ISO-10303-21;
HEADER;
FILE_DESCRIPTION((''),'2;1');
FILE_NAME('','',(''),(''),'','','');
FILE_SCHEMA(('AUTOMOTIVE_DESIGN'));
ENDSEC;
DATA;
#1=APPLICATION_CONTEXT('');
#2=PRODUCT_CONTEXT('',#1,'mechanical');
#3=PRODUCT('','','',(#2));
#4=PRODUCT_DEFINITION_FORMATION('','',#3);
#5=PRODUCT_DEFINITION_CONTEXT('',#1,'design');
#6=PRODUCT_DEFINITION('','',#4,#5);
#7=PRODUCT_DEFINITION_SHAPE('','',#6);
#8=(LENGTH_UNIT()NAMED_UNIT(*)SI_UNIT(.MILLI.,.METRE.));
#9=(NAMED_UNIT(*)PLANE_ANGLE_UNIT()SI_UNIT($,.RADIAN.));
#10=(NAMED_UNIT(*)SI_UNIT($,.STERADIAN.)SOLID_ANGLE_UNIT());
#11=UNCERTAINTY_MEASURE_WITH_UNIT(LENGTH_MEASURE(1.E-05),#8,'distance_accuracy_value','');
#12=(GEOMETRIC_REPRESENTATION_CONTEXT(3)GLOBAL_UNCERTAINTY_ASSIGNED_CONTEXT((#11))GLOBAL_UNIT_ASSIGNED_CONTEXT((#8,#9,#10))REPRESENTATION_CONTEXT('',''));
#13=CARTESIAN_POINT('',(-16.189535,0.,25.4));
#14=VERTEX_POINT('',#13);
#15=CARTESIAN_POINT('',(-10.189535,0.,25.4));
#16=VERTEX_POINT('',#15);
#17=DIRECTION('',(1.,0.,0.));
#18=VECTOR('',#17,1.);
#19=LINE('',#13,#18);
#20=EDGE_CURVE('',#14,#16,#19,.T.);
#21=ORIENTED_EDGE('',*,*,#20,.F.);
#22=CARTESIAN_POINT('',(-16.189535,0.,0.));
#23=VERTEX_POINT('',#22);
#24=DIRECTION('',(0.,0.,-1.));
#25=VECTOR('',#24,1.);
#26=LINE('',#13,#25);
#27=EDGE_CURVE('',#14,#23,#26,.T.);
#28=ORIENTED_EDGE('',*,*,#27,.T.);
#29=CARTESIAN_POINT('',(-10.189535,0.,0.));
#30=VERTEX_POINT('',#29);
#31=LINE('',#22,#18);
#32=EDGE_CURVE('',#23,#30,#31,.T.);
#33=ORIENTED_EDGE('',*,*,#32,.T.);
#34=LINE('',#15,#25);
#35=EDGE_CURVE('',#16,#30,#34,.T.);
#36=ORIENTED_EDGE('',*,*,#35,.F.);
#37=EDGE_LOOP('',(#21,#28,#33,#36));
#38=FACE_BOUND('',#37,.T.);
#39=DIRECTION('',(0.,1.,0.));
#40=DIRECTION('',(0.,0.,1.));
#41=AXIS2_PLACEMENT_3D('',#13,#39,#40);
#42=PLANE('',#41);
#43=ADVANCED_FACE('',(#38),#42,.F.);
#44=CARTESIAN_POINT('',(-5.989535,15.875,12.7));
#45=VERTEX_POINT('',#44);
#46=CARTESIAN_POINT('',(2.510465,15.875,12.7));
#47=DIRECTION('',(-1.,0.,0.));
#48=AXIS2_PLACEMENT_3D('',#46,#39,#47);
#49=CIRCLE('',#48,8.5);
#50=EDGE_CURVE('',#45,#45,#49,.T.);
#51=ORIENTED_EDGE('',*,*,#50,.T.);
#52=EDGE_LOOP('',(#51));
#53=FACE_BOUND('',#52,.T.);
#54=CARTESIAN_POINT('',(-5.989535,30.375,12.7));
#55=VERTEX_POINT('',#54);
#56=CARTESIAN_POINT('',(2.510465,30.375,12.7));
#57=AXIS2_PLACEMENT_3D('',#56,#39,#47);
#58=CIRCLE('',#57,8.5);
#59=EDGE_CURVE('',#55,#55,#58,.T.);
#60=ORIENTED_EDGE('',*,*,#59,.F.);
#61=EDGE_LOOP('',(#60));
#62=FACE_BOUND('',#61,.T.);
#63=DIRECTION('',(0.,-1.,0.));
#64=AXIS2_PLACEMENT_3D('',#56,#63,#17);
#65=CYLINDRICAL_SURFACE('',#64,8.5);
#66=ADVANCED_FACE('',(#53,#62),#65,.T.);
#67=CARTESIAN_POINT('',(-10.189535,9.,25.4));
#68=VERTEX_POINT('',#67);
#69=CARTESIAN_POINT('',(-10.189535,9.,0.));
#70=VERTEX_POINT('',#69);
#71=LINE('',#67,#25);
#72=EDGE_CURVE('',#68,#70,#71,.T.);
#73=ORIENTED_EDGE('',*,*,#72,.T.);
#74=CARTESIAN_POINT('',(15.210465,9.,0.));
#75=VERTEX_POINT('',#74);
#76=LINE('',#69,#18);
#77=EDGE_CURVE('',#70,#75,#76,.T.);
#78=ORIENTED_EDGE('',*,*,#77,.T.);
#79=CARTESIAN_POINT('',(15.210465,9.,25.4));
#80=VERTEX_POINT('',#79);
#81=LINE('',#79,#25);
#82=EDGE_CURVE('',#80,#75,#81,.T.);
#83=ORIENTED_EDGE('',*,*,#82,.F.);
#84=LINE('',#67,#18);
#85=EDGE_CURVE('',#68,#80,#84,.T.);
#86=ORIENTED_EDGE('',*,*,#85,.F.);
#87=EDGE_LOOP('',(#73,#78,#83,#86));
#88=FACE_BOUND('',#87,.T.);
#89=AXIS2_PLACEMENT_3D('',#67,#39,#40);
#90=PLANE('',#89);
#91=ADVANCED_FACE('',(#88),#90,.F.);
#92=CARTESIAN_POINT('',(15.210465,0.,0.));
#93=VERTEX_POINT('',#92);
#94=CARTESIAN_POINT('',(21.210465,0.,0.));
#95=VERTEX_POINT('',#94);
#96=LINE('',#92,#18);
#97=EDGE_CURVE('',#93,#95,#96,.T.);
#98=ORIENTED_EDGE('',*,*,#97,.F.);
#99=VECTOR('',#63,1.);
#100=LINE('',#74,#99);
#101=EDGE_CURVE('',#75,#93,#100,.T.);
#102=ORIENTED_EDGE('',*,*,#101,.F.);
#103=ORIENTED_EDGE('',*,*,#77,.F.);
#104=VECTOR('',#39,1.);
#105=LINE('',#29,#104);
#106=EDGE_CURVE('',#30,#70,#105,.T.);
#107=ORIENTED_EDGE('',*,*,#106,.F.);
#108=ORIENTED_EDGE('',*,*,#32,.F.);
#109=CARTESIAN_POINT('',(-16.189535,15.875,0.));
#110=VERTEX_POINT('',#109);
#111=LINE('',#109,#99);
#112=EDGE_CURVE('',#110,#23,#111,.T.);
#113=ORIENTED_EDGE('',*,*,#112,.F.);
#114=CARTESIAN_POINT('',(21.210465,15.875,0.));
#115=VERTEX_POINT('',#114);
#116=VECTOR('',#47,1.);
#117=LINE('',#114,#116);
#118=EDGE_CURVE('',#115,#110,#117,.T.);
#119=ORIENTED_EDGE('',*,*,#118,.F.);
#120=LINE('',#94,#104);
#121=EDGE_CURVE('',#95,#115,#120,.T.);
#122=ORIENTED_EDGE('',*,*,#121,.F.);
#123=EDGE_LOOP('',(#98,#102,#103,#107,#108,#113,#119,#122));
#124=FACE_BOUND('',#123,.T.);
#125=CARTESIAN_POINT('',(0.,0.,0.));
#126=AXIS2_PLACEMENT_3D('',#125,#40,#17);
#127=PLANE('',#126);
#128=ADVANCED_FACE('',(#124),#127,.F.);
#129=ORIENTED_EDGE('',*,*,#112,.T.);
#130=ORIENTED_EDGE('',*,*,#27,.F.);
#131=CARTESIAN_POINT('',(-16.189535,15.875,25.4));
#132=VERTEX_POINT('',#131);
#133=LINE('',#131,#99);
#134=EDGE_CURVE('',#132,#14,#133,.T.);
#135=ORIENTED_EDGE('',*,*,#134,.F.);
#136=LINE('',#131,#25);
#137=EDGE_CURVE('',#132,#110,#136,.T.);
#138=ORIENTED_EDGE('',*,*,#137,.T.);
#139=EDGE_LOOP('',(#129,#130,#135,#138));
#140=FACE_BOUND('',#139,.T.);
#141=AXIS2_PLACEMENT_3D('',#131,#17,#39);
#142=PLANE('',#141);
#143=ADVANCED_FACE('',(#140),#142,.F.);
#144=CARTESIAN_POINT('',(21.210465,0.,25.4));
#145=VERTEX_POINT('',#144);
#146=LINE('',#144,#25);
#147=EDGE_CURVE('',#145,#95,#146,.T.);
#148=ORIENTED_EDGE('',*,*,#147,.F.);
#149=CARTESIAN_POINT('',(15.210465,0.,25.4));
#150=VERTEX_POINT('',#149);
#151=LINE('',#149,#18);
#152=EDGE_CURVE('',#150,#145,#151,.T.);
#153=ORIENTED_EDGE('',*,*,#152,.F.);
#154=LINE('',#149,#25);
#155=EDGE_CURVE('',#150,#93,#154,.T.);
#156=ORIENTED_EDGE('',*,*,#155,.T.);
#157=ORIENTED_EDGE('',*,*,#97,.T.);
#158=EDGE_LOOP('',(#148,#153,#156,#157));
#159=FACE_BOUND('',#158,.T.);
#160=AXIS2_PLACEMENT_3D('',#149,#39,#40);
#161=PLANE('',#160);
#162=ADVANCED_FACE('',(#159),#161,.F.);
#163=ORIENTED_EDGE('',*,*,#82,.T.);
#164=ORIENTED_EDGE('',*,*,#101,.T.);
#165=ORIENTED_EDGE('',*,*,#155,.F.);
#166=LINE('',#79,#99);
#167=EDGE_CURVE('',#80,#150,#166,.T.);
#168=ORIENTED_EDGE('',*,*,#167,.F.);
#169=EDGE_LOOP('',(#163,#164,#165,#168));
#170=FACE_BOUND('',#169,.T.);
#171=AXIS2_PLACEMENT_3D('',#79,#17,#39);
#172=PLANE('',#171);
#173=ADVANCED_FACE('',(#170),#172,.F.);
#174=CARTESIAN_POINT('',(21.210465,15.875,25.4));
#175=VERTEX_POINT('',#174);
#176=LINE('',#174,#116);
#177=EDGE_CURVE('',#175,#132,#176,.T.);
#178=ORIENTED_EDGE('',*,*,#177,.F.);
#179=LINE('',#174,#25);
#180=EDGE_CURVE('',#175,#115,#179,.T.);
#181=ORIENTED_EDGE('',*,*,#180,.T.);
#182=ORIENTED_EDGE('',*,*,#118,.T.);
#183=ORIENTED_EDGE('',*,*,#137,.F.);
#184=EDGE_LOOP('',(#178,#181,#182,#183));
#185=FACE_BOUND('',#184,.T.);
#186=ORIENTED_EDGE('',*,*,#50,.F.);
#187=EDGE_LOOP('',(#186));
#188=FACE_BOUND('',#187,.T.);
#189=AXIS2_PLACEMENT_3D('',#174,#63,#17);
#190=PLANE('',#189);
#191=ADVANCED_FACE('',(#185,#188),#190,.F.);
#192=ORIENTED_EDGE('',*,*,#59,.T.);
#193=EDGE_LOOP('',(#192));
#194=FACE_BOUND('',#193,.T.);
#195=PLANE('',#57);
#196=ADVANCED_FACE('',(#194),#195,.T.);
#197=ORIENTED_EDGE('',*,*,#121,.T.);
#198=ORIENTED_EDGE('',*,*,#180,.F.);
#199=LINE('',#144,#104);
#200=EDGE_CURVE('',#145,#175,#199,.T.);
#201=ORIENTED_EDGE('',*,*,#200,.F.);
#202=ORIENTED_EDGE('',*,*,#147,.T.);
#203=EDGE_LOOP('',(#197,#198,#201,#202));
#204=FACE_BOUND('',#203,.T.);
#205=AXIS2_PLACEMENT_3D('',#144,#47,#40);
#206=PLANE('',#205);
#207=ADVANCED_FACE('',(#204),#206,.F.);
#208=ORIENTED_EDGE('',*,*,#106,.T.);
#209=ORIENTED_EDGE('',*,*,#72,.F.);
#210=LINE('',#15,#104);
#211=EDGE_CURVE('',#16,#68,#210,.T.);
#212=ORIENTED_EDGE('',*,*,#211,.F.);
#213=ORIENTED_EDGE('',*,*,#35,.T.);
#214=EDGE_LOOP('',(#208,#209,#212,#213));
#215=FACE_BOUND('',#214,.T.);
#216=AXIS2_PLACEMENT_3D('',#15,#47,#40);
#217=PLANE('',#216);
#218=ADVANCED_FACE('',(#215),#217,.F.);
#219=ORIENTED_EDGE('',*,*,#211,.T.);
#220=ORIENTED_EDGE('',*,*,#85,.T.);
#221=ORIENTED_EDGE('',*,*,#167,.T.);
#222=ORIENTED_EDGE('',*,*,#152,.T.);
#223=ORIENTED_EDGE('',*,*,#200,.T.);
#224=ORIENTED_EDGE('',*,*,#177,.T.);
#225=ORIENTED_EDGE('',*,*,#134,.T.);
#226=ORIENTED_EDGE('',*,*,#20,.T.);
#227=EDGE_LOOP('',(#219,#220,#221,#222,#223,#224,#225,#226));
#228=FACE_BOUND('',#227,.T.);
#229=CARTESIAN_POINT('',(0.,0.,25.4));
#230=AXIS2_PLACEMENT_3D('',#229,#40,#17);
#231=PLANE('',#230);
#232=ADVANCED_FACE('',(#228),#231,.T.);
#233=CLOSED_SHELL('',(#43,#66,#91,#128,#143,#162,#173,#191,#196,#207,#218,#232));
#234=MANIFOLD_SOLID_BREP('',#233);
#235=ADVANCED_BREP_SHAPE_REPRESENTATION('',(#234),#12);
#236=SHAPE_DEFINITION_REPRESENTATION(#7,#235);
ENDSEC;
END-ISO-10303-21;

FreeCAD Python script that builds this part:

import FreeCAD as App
import Part
import Sketcher
from FreeCAD import Vector

doc = App.newDocument("Part")
body = doc.addObject("PartDesign::Body", "Body")

# Sketch on XY plane
sketch1 = body.newObject("Sketcher::SketchObject", "Sketch")
sketch1.AttachmentSupport = (doc.getObject("XY_Plane"), [""])
sketch1.MapMode = "FlatFace"
sketch1.addGeometry([
    Part.LineSegment(Vector(-10.189535, 0, 0), Vector(-10.189535, 9, 0)),  # 0
    Part.LineSegment(Vector(-10.189535, 9, 0), Vector(15.210465, 9, 0)),  # 1
    Part.LineSegment(Vector(15.210465, 9, 0), Vector(15.210465, 0, 0)),  # 2
    Part.LineSegment(Vector(15.210465, 0, 0), Vector(21.210465, 0, 0)),  # 3
    Part.LineSegment(Vector(21.210465, 0, 0), Vector(21.210465, 15.875, 0)),  # 4
    Part.LineSegment(Vector(21.210465, 15.875, 0), Vector(-16.189535, 15.875, 0)),  # 5
    Part.LineSegment(Vector(-16.189535, 15.875, 0), Vector(-16.189535, 0, 0)),  # 6
    Part.LineSegment(Vector(-16.189535, 0, 0), Vector(-10.189535, 0, 0)),  # 7
], False)
sketch1.addConstraint([
    Sketcher.Constraint("Coincident", 0, 2, 1, 1),
    Sketcher.Constraint("Coincident", 1, 2, 2, 1),
    Sketcher.Constraint("Coincident", 2, 2, 3, 1),
    Sketcher.Constraint("Coincident", 3, 2, 4, 1),
    Sketcher.Constraint("Coincident", 4, 2, 5, 1),
    Sketcher.Constraint("Coincident", 5, 2, 6, 1),
    Sketcher.Constraint("Coincident", 6, 2, 7, 1),
    Sketcher.Constraint("Coincident", 7, 2, 0, 1),
    Sketcher.Constraint("Vertical", 0),
    Sketcher.Constraint("Horizontal", 1),
    Sketcher.Constraint("Vertical", 2),
    Sketcher.Constraint("Horizontal", 3),
    Sketcher.Constraint("Vertical", 4),
    Sketcher.Constraint("Horizontal", 5),
    Sketcher.Constraint("Vertical", 6),
    Sketcher.Constraint("Horizontal", 7),
    Sketcher.Constraint("PointOnObject", 2, 2, -1),
    Sketcher.Constraint("PointOnObject", 6, 2, -1),
    Sketcher.Constraint("Equal", 3, 7),
    Sketcher.Constraint("DistanceX", 3, 1, 3, 2, 6.0),
    Sketcher.Constraint("DistanceY", 0, 1, 0, 2, 9.0),
    Sketcher.Constraint("DistanceX", 1, 1, 1, 2, 25.4),
    Sketcher.Constraint("DistanceY", 4, 1, 4, 2, 15.875),
    Sketcher.Constraint("DistanceX", 0, 2, -1, 1, 10.189535),
])
pad1 = body.newObject("PartDesign::Pad", "Pad")
pad1.Profile = sketch1
pad1.Length = 25.4

# Sketch on XZ plane
sketch2 = body.newObject("Sketcher::SketchObject", "Sketch001")
sketch2.AttachmentSupport = (doc.getObject("XZ_Plane"), [""])
sketch2.MapMode = "FlatFace"
sketch2.AttachmentOffset = App.Placement(Vector(0, 0, -15.875), App.Rotation())
sketch2.addGeometry(Part.Circle(Vector(2.510465, 12.7, 0), Vector(0, 0, 1), 8.5), False)
sketch2.addConstraint([
    Sketcher.Constraint("Diameter", 0, 17.0),
    Sketcher.Constraint("DistanceY", -1, 1, 0, 3, 12.7),
    Sketcher.Constraint("DistanceX", -1, 1, 0, 3, 2.510465),
])
pad2 = body.newObject("PartDesign::Pad", "Pad001")
pad2.Profile = sketch2
pad2.Length = 14.5
pad2.Reversed = True

doc.recompute()
